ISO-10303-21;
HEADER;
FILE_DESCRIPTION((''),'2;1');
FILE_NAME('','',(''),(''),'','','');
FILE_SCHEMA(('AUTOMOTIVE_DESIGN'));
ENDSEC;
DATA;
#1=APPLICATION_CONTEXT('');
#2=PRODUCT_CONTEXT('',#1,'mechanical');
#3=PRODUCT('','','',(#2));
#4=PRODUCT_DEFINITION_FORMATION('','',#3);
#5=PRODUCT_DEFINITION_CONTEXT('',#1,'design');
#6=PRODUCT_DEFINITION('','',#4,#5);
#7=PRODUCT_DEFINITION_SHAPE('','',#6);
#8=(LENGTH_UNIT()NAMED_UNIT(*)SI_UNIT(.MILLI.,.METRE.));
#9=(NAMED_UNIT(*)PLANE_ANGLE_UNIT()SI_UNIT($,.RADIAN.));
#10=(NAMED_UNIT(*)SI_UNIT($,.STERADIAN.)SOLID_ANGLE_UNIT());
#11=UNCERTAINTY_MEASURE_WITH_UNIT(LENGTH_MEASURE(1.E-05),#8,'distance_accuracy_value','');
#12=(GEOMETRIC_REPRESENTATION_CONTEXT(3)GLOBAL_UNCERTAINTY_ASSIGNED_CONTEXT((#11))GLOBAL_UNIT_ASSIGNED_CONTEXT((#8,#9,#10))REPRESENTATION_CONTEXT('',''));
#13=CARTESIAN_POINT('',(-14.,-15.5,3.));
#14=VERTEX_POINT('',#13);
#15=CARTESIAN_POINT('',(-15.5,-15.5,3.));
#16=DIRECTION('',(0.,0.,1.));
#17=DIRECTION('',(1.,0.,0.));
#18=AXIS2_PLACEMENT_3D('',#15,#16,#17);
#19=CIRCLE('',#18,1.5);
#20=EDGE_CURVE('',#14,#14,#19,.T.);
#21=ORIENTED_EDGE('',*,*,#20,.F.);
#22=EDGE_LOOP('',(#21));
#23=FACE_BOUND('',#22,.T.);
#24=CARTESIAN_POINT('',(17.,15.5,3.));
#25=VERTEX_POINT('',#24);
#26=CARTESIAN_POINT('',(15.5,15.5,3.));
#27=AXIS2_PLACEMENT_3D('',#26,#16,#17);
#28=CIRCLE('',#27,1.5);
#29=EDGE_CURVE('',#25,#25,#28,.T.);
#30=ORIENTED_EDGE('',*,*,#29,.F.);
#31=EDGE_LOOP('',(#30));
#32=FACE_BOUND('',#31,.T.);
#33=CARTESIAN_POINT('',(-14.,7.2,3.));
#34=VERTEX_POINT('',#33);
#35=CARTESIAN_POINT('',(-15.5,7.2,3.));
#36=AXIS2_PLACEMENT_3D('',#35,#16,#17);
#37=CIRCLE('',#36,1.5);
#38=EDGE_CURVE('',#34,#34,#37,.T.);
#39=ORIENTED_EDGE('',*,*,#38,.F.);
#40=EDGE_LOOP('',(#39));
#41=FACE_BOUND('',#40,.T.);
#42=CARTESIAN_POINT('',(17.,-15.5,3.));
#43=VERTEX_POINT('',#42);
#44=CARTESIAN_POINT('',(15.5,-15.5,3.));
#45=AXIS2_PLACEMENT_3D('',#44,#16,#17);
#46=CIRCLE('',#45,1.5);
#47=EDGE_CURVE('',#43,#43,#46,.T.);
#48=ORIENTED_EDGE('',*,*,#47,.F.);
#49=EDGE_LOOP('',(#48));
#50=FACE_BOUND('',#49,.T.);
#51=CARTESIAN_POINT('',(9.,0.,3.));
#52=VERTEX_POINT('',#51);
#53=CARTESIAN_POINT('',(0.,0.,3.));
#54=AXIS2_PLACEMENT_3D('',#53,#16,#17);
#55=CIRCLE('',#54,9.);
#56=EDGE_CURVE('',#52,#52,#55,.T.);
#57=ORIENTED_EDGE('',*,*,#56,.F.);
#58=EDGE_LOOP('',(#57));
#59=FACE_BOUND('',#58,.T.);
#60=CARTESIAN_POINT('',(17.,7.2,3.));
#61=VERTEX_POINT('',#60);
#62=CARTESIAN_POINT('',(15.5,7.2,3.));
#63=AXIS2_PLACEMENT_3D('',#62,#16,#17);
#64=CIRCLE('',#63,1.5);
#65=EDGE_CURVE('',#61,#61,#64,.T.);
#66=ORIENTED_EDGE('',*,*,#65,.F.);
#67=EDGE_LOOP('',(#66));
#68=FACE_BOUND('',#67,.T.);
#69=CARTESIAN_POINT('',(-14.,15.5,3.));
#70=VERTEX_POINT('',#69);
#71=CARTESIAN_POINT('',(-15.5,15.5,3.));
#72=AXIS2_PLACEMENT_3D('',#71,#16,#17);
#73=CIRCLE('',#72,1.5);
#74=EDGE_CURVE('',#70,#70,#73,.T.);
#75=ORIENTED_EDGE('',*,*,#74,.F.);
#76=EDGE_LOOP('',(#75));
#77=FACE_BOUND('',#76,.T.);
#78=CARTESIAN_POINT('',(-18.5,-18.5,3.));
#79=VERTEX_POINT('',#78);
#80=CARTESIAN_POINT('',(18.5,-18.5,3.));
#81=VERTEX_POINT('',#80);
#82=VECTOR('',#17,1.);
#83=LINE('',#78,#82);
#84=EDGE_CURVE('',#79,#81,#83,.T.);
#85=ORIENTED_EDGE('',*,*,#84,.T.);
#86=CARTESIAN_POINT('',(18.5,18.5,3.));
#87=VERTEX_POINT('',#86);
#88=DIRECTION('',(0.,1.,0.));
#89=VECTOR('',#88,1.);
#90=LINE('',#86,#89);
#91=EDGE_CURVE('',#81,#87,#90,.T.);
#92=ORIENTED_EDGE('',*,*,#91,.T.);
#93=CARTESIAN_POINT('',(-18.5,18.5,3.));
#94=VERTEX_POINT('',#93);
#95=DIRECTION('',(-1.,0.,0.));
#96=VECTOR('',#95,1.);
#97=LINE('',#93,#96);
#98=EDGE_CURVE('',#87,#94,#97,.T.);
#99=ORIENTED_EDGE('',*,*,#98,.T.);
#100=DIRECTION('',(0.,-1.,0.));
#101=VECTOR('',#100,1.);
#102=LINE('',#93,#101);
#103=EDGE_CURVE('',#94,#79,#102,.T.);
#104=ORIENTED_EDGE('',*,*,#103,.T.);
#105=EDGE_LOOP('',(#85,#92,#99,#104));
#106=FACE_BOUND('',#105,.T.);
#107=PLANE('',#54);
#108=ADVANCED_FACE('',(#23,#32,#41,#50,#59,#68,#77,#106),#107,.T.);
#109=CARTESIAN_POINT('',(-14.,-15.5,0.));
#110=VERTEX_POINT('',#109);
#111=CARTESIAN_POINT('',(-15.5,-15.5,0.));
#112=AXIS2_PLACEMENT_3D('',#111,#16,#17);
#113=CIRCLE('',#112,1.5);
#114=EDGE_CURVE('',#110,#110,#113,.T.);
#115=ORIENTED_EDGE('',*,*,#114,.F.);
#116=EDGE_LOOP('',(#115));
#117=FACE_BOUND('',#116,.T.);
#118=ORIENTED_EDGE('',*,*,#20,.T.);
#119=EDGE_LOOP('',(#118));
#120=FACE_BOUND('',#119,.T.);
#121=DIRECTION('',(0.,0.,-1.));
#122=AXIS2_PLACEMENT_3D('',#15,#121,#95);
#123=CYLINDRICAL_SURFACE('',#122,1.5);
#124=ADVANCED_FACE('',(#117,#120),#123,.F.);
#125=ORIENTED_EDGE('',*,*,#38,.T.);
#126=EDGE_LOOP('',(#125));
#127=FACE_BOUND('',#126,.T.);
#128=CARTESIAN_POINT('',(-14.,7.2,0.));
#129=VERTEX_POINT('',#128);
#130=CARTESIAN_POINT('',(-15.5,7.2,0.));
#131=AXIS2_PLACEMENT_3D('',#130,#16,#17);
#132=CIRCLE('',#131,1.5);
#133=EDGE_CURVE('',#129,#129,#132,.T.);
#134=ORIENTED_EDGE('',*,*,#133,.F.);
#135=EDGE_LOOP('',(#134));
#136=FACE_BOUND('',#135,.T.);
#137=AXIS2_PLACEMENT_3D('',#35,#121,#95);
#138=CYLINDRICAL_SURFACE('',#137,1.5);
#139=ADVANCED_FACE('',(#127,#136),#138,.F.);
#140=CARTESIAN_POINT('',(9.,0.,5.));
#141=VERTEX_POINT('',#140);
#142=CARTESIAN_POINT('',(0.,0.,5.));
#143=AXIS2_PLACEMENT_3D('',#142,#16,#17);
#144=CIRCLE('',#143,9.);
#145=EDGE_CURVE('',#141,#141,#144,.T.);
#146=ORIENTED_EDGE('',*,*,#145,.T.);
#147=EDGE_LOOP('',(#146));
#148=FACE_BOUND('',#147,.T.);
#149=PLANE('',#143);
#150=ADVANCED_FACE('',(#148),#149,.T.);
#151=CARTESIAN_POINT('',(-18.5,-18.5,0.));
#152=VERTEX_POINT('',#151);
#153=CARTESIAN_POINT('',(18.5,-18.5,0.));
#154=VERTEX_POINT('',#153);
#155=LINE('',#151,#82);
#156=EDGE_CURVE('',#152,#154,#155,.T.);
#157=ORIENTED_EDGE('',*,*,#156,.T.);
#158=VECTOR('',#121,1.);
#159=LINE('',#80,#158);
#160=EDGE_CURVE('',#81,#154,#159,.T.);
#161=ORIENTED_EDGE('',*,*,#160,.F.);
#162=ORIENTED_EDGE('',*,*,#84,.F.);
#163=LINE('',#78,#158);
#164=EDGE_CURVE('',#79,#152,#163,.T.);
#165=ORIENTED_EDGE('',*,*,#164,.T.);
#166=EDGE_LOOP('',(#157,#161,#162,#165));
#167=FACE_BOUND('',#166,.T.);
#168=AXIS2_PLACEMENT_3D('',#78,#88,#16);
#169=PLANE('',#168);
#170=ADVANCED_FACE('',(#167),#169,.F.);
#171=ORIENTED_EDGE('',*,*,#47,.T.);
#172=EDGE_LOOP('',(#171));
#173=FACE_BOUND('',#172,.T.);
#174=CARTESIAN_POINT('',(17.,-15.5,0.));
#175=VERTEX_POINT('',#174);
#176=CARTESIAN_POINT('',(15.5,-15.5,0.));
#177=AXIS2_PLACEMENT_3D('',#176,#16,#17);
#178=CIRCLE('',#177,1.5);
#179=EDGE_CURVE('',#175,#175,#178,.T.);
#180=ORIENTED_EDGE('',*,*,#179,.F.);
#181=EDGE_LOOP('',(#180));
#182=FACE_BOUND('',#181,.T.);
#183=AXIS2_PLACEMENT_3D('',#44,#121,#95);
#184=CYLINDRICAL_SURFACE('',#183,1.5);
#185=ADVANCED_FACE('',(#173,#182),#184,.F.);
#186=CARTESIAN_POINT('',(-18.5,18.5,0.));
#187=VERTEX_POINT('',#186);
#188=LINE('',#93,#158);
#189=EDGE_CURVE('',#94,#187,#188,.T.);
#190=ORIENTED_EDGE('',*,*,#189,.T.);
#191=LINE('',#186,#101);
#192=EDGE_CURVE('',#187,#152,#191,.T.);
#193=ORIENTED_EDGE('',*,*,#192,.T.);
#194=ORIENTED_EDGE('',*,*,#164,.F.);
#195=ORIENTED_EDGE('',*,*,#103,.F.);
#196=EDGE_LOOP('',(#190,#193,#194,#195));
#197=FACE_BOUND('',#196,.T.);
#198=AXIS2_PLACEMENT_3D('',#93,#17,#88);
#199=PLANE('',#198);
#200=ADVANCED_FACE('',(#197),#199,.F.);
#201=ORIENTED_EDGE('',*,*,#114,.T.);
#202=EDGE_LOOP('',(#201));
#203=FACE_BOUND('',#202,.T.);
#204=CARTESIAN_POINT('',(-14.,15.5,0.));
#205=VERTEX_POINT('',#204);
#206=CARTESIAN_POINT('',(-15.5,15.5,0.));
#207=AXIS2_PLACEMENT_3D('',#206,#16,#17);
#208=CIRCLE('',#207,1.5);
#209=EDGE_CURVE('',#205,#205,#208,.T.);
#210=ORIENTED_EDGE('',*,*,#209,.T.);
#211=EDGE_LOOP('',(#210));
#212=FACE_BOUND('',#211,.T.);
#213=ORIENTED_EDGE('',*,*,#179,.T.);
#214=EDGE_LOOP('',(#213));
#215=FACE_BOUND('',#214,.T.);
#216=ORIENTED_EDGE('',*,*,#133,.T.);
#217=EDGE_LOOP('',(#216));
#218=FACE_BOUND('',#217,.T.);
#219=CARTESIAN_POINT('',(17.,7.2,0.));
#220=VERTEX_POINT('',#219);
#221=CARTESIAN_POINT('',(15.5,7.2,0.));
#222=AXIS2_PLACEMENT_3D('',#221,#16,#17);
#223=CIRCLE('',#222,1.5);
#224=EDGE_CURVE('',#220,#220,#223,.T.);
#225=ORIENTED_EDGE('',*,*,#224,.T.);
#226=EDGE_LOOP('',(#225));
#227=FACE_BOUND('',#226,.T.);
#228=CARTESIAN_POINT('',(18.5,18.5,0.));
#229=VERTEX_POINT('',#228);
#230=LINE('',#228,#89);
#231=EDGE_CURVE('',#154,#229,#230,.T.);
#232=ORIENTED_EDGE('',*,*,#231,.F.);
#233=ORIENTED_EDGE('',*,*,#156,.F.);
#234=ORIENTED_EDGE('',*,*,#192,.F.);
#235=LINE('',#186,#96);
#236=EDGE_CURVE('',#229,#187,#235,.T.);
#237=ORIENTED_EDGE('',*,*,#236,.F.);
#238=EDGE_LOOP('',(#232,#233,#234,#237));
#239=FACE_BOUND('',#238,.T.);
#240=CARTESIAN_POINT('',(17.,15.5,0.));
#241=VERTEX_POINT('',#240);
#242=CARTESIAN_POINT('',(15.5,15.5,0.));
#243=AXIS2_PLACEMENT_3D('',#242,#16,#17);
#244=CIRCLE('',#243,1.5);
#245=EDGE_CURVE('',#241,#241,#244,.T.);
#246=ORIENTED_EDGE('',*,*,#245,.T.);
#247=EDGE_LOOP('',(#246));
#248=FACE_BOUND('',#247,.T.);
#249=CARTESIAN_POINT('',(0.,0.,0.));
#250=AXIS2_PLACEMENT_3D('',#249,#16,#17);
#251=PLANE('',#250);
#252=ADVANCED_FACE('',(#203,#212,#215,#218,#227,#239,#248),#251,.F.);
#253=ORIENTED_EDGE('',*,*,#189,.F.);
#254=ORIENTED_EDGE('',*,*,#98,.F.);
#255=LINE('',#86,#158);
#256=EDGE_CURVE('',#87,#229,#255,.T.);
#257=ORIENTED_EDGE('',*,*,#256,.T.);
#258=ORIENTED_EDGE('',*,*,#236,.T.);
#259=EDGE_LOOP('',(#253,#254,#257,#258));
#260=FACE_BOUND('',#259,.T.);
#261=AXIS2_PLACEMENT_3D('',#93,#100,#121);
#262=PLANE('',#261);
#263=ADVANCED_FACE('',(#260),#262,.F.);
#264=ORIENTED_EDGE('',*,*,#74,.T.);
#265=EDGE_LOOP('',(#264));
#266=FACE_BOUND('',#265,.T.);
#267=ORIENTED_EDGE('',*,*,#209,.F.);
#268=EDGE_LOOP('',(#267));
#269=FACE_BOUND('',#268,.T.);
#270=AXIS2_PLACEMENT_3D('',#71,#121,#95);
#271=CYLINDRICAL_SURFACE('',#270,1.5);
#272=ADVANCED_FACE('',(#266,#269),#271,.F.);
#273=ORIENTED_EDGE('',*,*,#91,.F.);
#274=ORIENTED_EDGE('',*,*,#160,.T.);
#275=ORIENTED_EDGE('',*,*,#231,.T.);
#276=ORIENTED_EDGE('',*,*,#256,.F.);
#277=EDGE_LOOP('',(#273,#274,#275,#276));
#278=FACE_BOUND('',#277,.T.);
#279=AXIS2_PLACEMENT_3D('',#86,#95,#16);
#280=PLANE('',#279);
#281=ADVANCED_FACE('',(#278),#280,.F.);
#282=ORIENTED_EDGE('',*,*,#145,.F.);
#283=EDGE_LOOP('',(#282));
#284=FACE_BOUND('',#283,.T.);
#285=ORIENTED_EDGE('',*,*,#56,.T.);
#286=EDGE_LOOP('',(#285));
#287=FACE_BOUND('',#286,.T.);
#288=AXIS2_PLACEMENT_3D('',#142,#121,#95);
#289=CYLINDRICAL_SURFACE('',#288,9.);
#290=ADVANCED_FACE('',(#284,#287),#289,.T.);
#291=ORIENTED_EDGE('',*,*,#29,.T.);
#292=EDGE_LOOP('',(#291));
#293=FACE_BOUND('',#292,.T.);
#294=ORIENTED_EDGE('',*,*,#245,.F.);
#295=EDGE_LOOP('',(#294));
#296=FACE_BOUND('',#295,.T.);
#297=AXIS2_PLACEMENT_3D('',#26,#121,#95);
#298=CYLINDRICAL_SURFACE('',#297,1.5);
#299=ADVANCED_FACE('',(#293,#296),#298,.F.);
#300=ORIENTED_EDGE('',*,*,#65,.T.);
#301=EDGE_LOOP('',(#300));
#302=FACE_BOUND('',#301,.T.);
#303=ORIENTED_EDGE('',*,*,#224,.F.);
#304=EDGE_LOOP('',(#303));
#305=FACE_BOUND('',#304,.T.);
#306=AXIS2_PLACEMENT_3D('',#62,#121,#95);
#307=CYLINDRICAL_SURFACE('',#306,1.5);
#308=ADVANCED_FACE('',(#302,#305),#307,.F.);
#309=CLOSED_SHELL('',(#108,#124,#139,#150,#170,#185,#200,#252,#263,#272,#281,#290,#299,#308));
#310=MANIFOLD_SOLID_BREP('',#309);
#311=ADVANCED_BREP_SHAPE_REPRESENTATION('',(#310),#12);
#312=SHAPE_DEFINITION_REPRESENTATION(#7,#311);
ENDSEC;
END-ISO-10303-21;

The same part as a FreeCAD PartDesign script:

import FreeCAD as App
import Part
import Sketcher


def add_polygon(sketch, points):
    """Adds a closed chain of lines whose ends are joined by coincident constraints."""
    first, n = sketch.GeometryCount, len(points)
    for a, b in zip(points, points[1:] + points[:1]):
        sketch.addGeometry(Part.LineSegment(App.Vector(*a, 0), App.Vector(*b, 0)), False)
    for i in range(n):
        sketch.addConstraint(Sketcher.Constraint("Coincident", first + i, 2, first + (i + 1) % n, 1))

doc = App.newDocument("Part")
body = doc.addObject("PartDesign::Body", "Body")

sketch1 = body.newObject("Sketcher::SketchObject", "Sketch")
sketch1.AttachmentSupport = (doc.getObject("XY_Plane"), [""])
sketch1.MapMode = "FlatFace"
add_polygon(sketch1, [(-18.5, 18.5), (-18.5, -18.5), (18.5, -18.5), (18.5, 18.5)])
sketch1.addGeometry(Part.Circle(App.Vector(-15.5, -15.5, 0), App.Vector(0, 0, 1), 1.5), False)
sketch1.addGeometry(Part.Circle(App.Vector(15.5, -15.5, 0), App.Vector(0, 0, 1), 1.5), False)
sketch1.addGeometry(Part.Circle(App.Vector(-15.5, 7.2, 0), App.Vector(0, 0, 1), 1.5), False)
sketch1.addGeometry(Part.Circle(App.Vector(-15.5, 15.5, 0), App.Vector(0, 0, 1), 1.5), False)
sketch1.addGeometry(Part.Circle(App.Vector(15.5, 7.2, 0), App.Vector(0, 0, 1), 1.5), False)
sketch1.addGeometry(Part.Circle(App.Vector(15.5, 15.5, 0), App.Vector(0, 0, 1), 1.5), False)
sketch1.addConstraint([
    Sketcher.Constraint("Vertical", 0),
    Sketcher.Constraint("Horizontal", 1),
    Sketcher.Constraint("Vertical", 2),
    Sketcher.Constraint("Horizontal", 3),
    Sketcher.Constraint("Equal", 4, 5),
    Sketcher.Constraint("Equal", 5, 6),
    Sketcher.Constraint("Equal", 6, 7),
    Sketcher.Constraint("Equal", 7, 8),
    Sketcher.Constraint("Equal", 8, 9),
    Sketcher.Constraint("Symmetric", 5, 3, 7, 3, -1, 1),
    Sketcher.Constraint("Symmetric", 4, 3, 9, 3, -1, 1),
    Sketcher.Constraint("Symmetric", 0, 2, 2, 2, -1, 1),
    Sketcher.Constraint("Symmetric", 4, 3, 5, 3, -2),
    Sketcher.Constraint("Symmetric", 6, 3, 8, 3, -2),
    Sketcher.Constraint("Vertical", 4, 3, 6, 3),
    Sketcher.Constraint("Equal", 3, 0),
    Sketcher.Constraint("Diameter", 4, 3.0),
    Sketcher.Constraint("DistanceX", 1, 1, 1, 2, 37.0),
    Sketcher.Constraint("DistanceX", 4, 3, 5, 3, 31.0),
    Sketcher.Constraint("DistanceY", 4, 3, 7, 3, 31.0),
    Sketcher.Constraint("DistanceY", -1, 1, 6, 3, 7.2),
])
pad1 = body.newObject("PartDesign::Pad", "Pad")
pad1.Profile = sketch1
pad1.Length = 3

sketch2 = body.newObject("Sketcher::SketchObject", "Sketch001")
sketch2.AttachmentSupport = (doc.getObject("XY_Plane"), [""])
sketch2.MapMode = "FlatFace"
sketch2.AttachmentOffset = App.Placement(App.Vector(0, 0, 3), App.Rotation())
sketch2.addGeometry(Part.Circle(App.Vector(0, 0, 0), App.Vector(0, 0, 1), 9), False)
sketch2.addConstraint([
    Sketcher.Constraint("Coincident", 0, 3, -1, 1),
    Sketcher.Constraint("Diameter", 0, 18.0),
])
pad2 = body.newObject("PartDesign::Pad", "Pad001")
pad2.Profile = sketch2
pad2.Length = 2

doc.recompute()
